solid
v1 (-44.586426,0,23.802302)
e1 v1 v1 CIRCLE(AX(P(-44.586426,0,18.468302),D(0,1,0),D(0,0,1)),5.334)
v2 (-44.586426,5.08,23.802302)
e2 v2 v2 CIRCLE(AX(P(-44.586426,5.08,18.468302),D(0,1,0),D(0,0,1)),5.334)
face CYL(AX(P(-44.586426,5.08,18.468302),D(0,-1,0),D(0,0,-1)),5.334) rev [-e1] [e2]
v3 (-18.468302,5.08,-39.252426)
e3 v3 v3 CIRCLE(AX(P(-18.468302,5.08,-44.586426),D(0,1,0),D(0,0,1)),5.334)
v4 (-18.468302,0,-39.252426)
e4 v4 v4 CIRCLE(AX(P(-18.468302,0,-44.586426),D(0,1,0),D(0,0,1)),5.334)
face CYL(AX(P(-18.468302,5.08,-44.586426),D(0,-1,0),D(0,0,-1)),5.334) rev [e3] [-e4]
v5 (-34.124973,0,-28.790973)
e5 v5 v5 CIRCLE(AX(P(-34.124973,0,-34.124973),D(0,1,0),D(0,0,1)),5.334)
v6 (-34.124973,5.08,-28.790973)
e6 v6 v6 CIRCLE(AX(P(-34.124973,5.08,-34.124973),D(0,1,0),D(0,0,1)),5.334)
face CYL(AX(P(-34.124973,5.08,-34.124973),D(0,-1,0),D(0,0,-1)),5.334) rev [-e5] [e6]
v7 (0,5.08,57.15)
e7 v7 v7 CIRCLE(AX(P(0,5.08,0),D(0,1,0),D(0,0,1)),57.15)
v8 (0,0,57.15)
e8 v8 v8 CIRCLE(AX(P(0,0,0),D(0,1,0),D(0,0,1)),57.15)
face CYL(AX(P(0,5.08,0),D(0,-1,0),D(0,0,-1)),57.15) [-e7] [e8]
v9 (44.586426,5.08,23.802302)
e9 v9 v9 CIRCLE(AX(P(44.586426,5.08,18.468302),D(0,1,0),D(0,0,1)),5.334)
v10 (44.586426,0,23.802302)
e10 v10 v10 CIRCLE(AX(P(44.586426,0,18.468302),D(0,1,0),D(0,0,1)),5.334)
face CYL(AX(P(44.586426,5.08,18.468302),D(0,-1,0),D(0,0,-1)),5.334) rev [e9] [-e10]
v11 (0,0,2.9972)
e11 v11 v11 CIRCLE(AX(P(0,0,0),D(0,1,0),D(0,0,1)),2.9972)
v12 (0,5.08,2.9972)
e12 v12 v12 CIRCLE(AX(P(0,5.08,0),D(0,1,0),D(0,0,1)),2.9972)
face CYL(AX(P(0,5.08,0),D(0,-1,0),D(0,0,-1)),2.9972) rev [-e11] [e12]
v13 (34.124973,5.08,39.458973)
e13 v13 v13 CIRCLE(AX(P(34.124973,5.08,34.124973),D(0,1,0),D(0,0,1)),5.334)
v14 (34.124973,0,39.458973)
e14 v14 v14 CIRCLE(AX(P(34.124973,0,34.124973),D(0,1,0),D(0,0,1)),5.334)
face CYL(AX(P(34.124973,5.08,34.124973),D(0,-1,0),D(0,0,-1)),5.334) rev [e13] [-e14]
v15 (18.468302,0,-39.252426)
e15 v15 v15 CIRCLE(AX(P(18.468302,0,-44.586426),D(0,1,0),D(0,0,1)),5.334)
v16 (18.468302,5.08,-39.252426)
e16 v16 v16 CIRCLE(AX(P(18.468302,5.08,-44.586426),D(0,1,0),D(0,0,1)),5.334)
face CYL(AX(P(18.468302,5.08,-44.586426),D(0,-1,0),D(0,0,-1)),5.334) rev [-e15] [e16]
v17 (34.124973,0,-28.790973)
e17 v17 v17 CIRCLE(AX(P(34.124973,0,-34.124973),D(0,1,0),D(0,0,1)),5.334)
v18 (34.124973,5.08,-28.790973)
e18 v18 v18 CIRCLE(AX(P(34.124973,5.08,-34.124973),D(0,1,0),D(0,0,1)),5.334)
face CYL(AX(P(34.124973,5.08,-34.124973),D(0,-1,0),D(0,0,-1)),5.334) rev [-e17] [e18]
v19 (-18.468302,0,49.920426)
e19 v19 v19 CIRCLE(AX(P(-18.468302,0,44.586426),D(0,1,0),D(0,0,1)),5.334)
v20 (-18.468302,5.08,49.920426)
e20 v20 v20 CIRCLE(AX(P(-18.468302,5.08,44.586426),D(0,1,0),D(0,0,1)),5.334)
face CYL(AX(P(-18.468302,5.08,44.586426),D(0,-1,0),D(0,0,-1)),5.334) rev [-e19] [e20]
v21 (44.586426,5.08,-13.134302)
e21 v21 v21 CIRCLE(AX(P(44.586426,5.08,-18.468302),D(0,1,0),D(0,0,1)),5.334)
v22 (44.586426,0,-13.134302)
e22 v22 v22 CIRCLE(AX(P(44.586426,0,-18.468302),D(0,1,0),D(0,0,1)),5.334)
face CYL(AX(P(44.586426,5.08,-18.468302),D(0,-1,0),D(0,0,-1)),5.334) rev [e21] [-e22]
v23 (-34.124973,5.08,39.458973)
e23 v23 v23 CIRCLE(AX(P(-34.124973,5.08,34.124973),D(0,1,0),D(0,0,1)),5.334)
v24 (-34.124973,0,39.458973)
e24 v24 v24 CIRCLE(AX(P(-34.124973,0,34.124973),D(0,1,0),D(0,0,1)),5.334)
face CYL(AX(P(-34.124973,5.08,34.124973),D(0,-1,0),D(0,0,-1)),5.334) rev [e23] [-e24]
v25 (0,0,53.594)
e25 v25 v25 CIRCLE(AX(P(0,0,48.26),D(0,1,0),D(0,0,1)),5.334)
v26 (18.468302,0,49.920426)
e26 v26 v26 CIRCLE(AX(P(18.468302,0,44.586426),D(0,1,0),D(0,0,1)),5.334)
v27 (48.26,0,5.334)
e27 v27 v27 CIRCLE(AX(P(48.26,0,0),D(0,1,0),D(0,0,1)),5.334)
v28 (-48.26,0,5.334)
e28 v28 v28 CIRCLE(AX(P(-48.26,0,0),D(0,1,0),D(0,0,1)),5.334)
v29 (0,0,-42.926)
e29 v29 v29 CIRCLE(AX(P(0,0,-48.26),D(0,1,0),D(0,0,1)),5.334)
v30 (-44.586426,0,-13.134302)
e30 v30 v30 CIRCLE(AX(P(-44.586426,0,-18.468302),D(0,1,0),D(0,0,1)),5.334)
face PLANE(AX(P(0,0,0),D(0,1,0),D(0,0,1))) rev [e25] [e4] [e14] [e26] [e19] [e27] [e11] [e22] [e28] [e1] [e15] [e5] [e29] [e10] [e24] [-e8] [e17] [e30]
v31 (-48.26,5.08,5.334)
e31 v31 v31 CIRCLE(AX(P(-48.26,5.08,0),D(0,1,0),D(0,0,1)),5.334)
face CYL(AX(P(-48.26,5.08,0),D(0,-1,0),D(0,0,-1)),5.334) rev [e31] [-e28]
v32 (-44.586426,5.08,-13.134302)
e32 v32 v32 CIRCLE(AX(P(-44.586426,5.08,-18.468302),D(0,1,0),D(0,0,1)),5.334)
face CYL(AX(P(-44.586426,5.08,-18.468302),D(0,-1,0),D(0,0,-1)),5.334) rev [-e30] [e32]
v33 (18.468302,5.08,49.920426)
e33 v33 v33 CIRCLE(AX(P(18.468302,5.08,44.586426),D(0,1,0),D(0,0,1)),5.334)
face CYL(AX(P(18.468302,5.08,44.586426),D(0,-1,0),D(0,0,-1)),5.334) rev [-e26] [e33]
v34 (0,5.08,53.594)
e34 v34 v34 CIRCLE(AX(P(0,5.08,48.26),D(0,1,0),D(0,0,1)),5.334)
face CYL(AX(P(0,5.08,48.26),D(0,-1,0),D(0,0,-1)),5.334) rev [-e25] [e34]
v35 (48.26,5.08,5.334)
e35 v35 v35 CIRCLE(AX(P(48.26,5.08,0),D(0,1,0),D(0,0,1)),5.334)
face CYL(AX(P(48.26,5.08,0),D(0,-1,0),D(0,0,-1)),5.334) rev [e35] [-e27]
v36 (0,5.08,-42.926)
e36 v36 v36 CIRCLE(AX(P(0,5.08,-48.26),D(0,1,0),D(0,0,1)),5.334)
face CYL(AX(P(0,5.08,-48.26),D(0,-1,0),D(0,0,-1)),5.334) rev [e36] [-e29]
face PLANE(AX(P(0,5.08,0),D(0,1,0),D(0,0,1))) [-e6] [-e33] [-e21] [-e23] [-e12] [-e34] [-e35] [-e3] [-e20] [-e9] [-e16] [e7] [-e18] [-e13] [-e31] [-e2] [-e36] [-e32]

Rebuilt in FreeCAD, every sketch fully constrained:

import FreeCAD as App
import Part
import Sketcher
Q = App.Units.Quantity

doc = App.newDocument("Part")
body = doc.addObject("PartDesign::Body", "Body")

sketch1 = doc.addObject("Sketcher::SketchObject", "Sketch")
body.addObject(sketch1)
sketch1.AttachmentSupport = (doc.XZ_Plane, [""])
sketch1.MapMode = "FlatFace"
sketch1.addGeometry([
    Part.Circle(App.Vector(0, 0, 0), App.Vector(0, 0, 1), 57.15),
    Part.Circle(App.Vector(-34.124973, -34.124973, 0), App.Vector(0, 0, 1), 5.334),
    Part.Circle(App.Vector(-44.586426, -18.468302, 0), App.Vector(0, 0, 1), 5.334),
    Part.Circle(App.Vector(-18.468302, -44.586426, 0), App.Vector(0, 0, 1), 5.334),
    Part.Circle(App.Vector(0, -48.26, 0), App.Vector(0, 0, 1), 5.334),
    Part.Circle(App.Vector(-48.26, 0, 0), App.Vector(0, 0, 1), 5.334),
    Part.Circle(App.Vector(-44.586426, 18.468302, 0), App.Vector(0, 0, 1), 5.334),
    Part.Circle(App.Vector(-34.124973, 34.124973, 0), App.Vector(0, 0, 1), 5.334),
    Part.Circle(App.Vector(-18.468302, 44.586426, 0), App.Vector(0, 0, 1), 5.334),
    Part.Circle(App.Vector(18.468302, -44.586426, 0), App.Vector(0, 0, 1), 5.334),
    Part.Circle(App.Vector(34.124973, -34.124973, 0), App.Vector(0, 0, 1), 5.334),
    Part.Circle(App.Vector(44.586426, -18.468302, 0), App.Vector(0, 0, 1), 5.334),
    Part.Circle(App.Vector(48.26, 0, 0), App.Vector(0, 0, 1), 5.334),
    Part.Circle(App.Vector(0, 0, 0), App.Vector(0, 0, 1), 2.9972),
    Part.Circle(App.Vector(0, 48.26, 0), App.Vector(0, 0, 1), 5.334),
    Part.Circle(App.Vector(18.468302, 44.586426, 0), App.Vector(0, 0, 1), 5.334),
    Part.Circle(App.Vector(44.586426, 18.468302, 0), App.Vector(0, 0, 1), 5.334),
    Part.Circle(App.Vector(34.124973, 34.124973, 0), App.Vector(0, 0, 1), 5.334),
], False)
sketch1.addConstraint([
    Sketcher.Constraint("Coincident", 0, 3, -1, 1),
    Sketcher.Constraint("Coincident", 13, 3, -1, 1),
    Sketcher.Constraint("Equal", 1, 2),
    Sketcher.Constraint("Equal", 2, 3),
    Sketcher.Constraint("Equal", 3, 4),
    Sketcher.Constraint("Equal", 4, 5),
    Sketcher.Constraint("Equal", 5, 6),
    Sketcher.Constraint("Equal", 6, 7),
    Sketcher.Constraint("Equal", 7, 8),
    Sketcher.Constraint("Equal", 8, 9),
    Sketcher.Constraint("Equal", 9, 10),
    Sketcher.Constraint("Equal", 10, 11),
    Sketcher.Constraint("Equal", 11, 12),
    Sketcher.Constraint("Equal", 12, 14),
    Sketcher.Constraint("Equal", 14, 15),
    Sketcher.Constraint("Equal", 15, 16),
    Sketcher.Constraint("Equal", 16, 17),
    Sketcher.Constraint("Symmetric", 8, 3, 9, 3, -1, 1),
    Sketcher.Constraint("Symmetric", 7, 3, 10, 3, -1, 1),
    Sketcher.Constraint("Symmetric", 6, 3, 11, 3, -1, 1),
    Sketcher.Constraint("Symmetric", 5, 3, 12, 3, -1, 1),
    Sketcher.Constraint("Symmetric", 4, 3, 14, 3, -1, 1),
    Sketcher.Constraint("Symmetric", 3, 3, 15, 3, -1, 1),
    Sketcher.Constraint("Symmetric", 2, 3, 16, 3, -1, 1),
    Sketcher.Constraint("Symmetric", 1, 3, 17, 3, -1, 1),
    Sketcher.Constraint("Symmetric", 3, 3, 9, 3, -2),
    Sketcher.Constraint("Symmetric", 1, 3, 10, 3, -2),
    Sketcher.Constraint("Symmetric", 2, 3, 11, 3, -2),
    Sketcher.Constraint("PointOnObject", 4, 3, -2),
    Sketcher.Constraint("PointOnObject", 5, 3, -1),
    Sketcher.Constraint("Diameter", 0, Q("4.5 in")),
    Sketcher.Constraint("Diameter", 1, Q("0.42 in")),
    Sketcher.Constraint("Diameter", 13, Q("0.236 in")),
    Sketcher.Constraint("DistanceY", 4, 3, -1, 1, Q("1.9 in")),
    Sketcher.Constraint("DistanceX", 5, 3, -1, 1, Q("1.9 in")),
    Sketcher.Constraint("DistanceY", 1, 3, 2, 3, 15.656671),
    Sketcher.Constraint("DistanceX", 1, 3, 3, 3, 15.656671),
    Sketcher.Constraint("DistanceY", 3, 3, 6, 3, 63.054729),
    Sketcher.Constraint("DistanceX", 2, 3, 9, 3, 63.054729),
    Sketcher.Constraint("DistanceX", 1, 3, -1, 1, 34.124973),
    Sketcher.Constraint("DistanceY", 1, 3, -1, 1, 34.124973),
])
pad1 = doc.addObject("PartDesign::Pad", "Pad")
body.addObject(pad1)
pad1.Profile = sketch1
pad1.Length = Q("0.2 in")
pad1.Reversed = True

doc.recompute()
